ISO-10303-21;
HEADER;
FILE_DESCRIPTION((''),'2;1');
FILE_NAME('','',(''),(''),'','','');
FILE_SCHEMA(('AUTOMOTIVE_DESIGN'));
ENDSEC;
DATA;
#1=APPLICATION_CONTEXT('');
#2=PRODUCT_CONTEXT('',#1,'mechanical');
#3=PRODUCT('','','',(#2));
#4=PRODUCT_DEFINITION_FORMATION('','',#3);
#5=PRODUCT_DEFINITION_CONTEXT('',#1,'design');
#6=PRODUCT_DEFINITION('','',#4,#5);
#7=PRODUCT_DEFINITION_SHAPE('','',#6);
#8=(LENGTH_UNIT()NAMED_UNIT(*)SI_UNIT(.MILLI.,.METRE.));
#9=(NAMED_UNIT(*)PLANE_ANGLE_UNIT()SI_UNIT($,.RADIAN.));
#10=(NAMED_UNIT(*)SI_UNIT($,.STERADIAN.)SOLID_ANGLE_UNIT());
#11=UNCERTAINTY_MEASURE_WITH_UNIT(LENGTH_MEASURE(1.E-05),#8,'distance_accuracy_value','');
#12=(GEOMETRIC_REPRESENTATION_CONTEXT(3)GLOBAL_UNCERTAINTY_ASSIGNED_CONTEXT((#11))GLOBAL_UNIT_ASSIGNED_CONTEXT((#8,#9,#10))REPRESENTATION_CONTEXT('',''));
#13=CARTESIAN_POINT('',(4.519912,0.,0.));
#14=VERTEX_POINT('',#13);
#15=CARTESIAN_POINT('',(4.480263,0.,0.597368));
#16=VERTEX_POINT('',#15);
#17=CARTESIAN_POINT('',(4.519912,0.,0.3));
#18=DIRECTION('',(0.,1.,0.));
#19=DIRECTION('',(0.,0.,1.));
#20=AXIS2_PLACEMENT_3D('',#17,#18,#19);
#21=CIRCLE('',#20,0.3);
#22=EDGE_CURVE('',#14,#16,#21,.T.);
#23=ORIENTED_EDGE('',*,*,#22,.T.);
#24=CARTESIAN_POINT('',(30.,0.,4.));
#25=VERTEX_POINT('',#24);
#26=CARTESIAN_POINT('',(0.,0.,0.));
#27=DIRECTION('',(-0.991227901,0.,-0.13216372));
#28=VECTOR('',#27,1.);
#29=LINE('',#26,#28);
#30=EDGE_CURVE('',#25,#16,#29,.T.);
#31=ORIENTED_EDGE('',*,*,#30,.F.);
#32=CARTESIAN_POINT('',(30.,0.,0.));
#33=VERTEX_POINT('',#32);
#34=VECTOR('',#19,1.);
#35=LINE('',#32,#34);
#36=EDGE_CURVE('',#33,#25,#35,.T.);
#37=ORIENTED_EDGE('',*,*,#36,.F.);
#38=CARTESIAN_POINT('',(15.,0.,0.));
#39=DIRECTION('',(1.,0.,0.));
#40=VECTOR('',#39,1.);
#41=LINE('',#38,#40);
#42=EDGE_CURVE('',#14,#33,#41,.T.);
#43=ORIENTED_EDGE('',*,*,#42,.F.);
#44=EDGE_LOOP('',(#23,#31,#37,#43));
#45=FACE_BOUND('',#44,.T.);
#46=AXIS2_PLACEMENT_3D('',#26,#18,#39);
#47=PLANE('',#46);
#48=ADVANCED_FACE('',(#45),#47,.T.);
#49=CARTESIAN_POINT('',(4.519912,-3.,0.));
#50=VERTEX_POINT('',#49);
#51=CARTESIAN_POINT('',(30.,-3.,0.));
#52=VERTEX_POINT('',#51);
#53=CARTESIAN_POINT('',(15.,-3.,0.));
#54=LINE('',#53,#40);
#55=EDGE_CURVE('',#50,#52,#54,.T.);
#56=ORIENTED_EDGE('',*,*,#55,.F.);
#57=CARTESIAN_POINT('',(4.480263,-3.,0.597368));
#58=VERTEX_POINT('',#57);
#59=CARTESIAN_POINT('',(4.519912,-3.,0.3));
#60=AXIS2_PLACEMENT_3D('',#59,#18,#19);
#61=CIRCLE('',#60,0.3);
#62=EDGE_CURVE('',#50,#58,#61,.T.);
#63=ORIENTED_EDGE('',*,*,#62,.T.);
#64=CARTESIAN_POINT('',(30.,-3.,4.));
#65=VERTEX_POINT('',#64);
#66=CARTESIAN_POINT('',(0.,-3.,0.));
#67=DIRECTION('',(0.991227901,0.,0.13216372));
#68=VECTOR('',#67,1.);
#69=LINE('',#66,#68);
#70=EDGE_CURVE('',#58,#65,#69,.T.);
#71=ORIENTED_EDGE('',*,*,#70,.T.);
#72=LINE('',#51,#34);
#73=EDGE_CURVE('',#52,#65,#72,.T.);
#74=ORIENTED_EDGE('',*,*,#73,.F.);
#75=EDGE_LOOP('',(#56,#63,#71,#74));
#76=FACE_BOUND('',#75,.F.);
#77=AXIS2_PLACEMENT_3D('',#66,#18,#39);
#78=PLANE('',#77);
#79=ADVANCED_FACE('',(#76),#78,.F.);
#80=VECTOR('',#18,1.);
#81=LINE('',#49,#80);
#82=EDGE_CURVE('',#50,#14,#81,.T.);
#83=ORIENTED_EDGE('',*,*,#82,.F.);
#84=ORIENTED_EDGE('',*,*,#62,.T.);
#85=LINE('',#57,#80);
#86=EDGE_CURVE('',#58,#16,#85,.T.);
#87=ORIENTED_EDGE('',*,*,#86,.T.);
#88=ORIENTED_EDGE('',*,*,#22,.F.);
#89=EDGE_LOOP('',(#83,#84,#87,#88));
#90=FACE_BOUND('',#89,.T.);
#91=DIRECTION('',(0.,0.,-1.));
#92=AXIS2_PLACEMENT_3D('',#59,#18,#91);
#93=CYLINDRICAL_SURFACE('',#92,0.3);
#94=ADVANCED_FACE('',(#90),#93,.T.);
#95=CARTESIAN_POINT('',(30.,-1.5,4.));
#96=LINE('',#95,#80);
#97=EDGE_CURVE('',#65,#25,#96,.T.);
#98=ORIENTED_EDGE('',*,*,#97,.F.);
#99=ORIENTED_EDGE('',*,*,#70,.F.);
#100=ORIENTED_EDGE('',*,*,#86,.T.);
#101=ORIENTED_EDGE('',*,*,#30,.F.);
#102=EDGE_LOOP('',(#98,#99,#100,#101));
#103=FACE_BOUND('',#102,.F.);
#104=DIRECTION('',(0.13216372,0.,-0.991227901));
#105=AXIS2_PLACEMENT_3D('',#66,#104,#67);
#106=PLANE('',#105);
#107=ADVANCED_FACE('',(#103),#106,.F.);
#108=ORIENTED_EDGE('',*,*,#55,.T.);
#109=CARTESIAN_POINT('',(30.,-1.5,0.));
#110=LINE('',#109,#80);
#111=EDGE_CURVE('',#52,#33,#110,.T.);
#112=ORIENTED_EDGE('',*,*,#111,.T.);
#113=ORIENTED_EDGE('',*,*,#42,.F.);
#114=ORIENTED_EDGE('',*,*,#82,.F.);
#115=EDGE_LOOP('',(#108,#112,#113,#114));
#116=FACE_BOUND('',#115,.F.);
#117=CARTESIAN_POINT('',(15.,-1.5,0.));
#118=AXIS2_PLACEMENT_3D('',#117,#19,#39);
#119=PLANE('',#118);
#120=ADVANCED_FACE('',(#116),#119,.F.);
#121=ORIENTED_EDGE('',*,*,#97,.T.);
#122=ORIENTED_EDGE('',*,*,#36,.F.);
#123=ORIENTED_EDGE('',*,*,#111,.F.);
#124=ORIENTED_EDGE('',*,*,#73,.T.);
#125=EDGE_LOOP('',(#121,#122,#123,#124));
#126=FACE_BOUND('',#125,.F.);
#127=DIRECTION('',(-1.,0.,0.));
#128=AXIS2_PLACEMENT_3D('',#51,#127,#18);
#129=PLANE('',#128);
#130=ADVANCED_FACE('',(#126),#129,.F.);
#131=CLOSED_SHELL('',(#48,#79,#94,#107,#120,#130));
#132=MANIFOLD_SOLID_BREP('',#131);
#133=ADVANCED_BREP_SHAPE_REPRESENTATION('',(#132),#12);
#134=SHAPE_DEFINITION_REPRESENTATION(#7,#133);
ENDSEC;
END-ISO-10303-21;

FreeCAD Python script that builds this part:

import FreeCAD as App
import Part
import Sketcher
from FreeCAD import Vector


def edges_at(feature, points):
    """Names of the edges that pass closest to the given points."""
    edges = feature.Shape.Edges
    near = lambda p: min(range(len(edges)), key=lambda i: edges[i].distToShape(Part.Vertex(*p))[0])
    return sorted({f"Edge{near(p) + 1}" for p in points})

doc = App.newDocument("Part")
body = doc.addObject("PartDesign::Body", "Body")

sketch1 = doc.addObject("Sketcher::SketchObject", "Sketch")
body.addObject(sketch1)
sketch1.AttachmentSupport = (doc.XY_Plane, [""])
sketch1.MapMode = "FlatFace"
sketch1.addGeometry(Part.LineSegment(Vector(0, 0, 0), Vector(0, -3, 0)), False)
sketch1.addGeometry(Part.LineSegment(Vector(0, -3, 0), Vector(30, -3, 0)), False)
sketch1.addGeometry(Part.LineSegment(Vector(30, -3, 0), Vector(30, 0, 0)), False)
sketch1.addGeometry(Part.LineSegment(Vector(30, 0, 0), Vector(0, 0, 0)), False)
sketch1.addConstraint(Sketcher.Constraint("Coincident", 0, 2, 1, 1))
sketch1.addConstraint(Sketcher.Constraint("Coincident", 1, 2, 2, 1))
sketch1.addConstraint(Sketcher.Constraint("Coincident", 2, 2, 3, 1))
sketch1.addConstraint(Sketcher.Constraint("Coincident", 3, 2, 0, 1))
sketch1.addConstraint(Sketcher.Constraint("Vertical", 0))
sketch1.addConstraint(Sketcher.Constraint("Horizontal", 1))
sketch1.addConstraint(Sketcher.Constraint("Vertical", 2))
sketch1.addConstraint(Sketcher.Constraint("Horizontal", 3))
sketch1.addConstraint(Sketcher.Constraint("Coincident", 3, 2, -1, 1))
sketch1.addConstraint(Sketcher.Constraint("DistanceX", 1, 1, 1, 2, 30.0))
sketch1.addConstraint(Sketcher.Constraint("DistanceY", 0, 2, 0, 1, 3.0))
pad1 = doc.addObject("PartDesign::Pad", "Pad")
body.addObject(pad1)
pad1.Profile = sketch1
pad1.Length = 4

sketch2 = doc.addObject("Sketcher::SketchObject", "Sketch001")
body.addObject(sketch2)
sketch2.AttachmentSupport = (doc.XZ_Plane, [""])
sketch2.MapMode = "FlatFace"
sketch2.AttachmentOffset = App.Placement(Vector(0, 0, 3), App.Rotation())
sketch2.addGeometry(Part.LineSegment(Vector(0, 4, 0), Vector(0, 0, 0)), False)
sketch2.addGeometry(Part.LineSegment(Vector(0, 0, 0), Vector(30, 4, 0)), False)
sketch2.addGeometry(Part.LineSegment(Vector(30, 4, 0), Vector(0, 4, 0)), False)
sketch2.addConstraint(Sketcher.Constraint("Coincident", 0, 2, 1, 1))
sketch2.addConstraint(Sketcher.Constraint("Coincident", 1, 2, 2, 1))
sketch2.addConstraint(Sketcher.Constraint("Coincident", 2, 2, 0, 1))
sketch2.addConstraint(Sketcher.Constraint("Vertical", 0))
sketch2.addConstraint(Sketcher.Constraint("Horizontal", 2))
sketch2.addConstraint(Sketcher.Constraint("Coincident", 0, 2, -1, 1))
sketch2.addConstraint(Sketcher.Constraint("DistanceX", 2, 2, 2, 1, 30.0))
sketch2.addConstraint(Sketcher.Constraint("DistanceY", 0, 2, 0, 1, 4.0))
pocket1 = doc.addObject("PartDesign::Pocket", "Pocket")
body.addObject(pocket1)
pocket1.Profile = sketch2
pocket1.Length = 25
doc.recompute()

fillet = doc.addObject("PartDesign::Fillet", "Fillet")
body.addObject(fillet)
fillet.Base = (pocket1, edges_at(pocket1, [(0, -1.5, 0)]))
fillet.Radius = 0.3

doc.recompute()
